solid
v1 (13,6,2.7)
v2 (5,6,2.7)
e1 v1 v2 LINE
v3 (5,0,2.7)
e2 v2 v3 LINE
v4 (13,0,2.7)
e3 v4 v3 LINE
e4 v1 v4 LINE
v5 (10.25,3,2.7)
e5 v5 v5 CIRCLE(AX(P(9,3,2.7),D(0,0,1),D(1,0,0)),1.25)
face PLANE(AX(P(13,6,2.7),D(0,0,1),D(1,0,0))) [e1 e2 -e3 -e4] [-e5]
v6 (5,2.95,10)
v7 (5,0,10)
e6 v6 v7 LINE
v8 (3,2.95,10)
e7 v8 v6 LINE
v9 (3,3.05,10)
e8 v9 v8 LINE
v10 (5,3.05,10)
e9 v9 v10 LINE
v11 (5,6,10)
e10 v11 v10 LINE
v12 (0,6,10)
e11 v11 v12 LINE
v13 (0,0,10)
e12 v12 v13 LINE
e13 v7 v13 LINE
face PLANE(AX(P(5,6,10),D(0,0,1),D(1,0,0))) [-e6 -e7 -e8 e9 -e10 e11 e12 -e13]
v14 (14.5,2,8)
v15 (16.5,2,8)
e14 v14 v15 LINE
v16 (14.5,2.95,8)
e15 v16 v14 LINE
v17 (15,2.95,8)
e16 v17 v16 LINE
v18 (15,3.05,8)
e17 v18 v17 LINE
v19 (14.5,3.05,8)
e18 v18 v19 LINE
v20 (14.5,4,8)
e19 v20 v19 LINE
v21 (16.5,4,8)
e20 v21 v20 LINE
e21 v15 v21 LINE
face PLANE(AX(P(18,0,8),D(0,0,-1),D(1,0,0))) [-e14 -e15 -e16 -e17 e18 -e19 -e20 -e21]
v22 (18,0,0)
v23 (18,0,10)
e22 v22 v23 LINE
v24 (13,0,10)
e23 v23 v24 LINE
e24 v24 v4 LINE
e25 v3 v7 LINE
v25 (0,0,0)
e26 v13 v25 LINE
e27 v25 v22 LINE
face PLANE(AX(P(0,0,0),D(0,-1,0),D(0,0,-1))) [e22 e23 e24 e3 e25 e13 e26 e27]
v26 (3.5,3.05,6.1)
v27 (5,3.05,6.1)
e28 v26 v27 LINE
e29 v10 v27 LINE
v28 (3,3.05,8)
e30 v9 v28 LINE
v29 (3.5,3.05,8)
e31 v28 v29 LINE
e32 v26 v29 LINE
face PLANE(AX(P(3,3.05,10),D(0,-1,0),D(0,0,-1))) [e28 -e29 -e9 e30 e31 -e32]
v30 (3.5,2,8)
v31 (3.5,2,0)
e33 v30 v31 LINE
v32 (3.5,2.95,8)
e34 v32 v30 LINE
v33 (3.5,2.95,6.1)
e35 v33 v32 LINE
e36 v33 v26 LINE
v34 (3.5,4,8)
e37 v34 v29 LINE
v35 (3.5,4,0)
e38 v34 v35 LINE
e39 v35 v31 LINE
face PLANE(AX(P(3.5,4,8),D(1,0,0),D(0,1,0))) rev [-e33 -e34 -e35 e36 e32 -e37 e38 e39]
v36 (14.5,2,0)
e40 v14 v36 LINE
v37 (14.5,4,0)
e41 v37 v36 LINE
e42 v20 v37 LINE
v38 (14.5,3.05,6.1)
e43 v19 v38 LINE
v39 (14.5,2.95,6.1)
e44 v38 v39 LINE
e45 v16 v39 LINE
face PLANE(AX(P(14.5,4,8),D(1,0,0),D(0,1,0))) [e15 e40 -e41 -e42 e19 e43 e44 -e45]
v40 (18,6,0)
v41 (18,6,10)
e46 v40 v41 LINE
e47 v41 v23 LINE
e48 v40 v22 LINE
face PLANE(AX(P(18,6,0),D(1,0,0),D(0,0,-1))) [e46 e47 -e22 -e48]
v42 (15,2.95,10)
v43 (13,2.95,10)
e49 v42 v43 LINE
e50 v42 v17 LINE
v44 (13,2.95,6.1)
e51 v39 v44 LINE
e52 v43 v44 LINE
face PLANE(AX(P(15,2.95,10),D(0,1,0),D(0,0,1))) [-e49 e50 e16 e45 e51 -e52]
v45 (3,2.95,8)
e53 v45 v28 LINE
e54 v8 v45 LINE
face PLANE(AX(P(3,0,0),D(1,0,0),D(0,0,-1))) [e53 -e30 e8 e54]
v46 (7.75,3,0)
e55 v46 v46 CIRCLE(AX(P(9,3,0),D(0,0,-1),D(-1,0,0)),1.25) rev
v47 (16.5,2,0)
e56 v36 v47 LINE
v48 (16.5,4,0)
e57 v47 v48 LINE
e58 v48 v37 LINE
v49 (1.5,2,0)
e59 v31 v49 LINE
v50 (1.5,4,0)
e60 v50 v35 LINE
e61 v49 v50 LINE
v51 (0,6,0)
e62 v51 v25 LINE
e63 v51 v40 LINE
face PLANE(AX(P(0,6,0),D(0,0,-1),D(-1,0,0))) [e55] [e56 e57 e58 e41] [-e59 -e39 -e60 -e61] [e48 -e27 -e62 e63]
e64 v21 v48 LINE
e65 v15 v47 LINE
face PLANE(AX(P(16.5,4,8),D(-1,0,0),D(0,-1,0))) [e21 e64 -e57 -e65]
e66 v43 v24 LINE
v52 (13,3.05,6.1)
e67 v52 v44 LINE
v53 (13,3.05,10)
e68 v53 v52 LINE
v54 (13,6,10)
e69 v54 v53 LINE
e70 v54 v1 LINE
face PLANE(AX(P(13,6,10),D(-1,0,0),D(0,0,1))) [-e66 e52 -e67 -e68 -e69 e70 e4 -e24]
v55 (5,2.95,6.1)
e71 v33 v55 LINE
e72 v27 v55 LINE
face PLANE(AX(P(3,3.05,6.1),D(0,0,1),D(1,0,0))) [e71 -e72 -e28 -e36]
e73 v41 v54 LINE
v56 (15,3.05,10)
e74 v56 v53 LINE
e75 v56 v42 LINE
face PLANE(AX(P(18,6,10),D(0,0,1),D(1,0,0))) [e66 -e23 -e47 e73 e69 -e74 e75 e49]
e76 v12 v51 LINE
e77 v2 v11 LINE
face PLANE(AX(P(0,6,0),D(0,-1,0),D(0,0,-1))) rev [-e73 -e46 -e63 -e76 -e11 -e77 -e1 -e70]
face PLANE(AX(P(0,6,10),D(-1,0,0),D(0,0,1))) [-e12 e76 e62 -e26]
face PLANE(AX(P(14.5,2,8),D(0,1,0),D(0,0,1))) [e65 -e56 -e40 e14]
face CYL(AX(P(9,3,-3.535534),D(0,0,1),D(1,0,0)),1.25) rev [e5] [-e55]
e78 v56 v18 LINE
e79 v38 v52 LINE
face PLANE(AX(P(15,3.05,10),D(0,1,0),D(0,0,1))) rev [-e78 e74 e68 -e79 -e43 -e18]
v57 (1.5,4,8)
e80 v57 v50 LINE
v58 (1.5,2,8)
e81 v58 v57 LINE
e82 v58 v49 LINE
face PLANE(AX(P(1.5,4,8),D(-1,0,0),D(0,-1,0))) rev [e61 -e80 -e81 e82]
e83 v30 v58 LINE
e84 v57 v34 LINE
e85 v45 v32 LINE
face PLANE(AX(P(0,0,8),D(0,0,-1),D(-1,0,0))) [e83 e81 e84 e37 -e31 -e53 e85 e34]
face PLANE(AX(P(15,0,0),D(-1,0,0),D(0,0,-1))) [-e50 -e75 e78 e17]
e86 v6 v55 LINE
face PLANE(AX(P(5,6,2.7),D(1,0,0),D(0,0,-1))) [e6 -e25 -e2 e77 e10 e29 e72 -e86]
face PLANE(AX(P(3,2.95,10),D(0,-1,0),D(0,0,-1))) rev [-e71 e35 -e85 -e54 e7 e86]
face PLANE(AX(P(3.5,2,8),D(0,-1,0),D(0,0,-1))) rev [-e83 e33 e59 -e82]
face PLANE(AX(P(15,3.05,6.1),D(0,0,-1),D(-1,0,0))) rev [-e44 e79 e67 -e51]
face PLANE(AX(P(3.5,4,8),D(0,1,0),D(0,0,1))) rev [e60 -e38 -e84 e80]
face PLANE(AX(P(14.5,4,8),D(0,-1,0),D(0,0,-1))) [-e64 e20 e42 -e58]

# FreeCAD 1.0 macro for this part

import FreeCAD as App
import Part
import Sketcher

V = App.Vector
Q = App.Units.Quantity

doc = App.newDocument("Part")
body = doc.addObject("PartDesign::Body", "Body")

sketch1 = body.newObject("Sketcher::SketchObject", "Sketch")
sketch1.AttachmentSupport = (doc.getObject("XZ_Plane"), [""])
sketch1.MapMode = "FlatFace"
sketch1.addGeometry([
    Part.LineSegment(V(18, 0, 0), V(0, 0, 0)),
    Part.LineSegment(V(0, 0, 0), V(0, 10, 0)),
    Part.LineSegment(V(0, 10, 0), V(5, 10, 0)),
    Part.LineSegment(V(5, 10, 0), V(5, 3, 0)),
    Part.LineSegment(V(5, 3, 0), V(13, 3, 0)),
    Part.LineSegment(V(13, 3, 0), V(13, 10, 0)),
    Part.LineSegment(V(13, 10, 0), V(18, 10, 0)),
    Part.LineSegment(V(18, 10, 0), V(18, 0, 0)),
], False)
sketch1.addConstraint([
    Sketcher.Constraint("Coincident", 0, 2, 1, 1),
    Sketcher.Constraint("Coincident", 1, 2, 2, 1),
    Sketcher.Constraint("Coincident", 2, 2, 3, 1),
    Sketcher.Constraint("Coincident", 3, 2, 4, 1),
    Sketcher.Constraint("Coincident", 4, 2, 5, 1),
    Sketcher.Constraint("Coincident", 5, 2, 6, 1),
    Sketcher.Constraint("Coincident", 6, 2, 7, 1),
    Sketcher.Constraint("Coincident", 7, 2, 0, 1),
    Sketcher.Constraint("Horizontal", 0),
    Sketcher.Constraint("Vertical", 1),
    Sketcher.Constraint("Horizontal", 2),
    Sketcher.Constraint("Vertical", 3),
    Sketcher.Constraint("Horizontal", 4),
    Sketcher.Constraint("Vertical", 5),
    Sketcher.Constraint("Horizontal", 6),
    Sketcher.Constraint("Vertical", 7),
    Sketcher.Constraint("Coincident", 0, 2, -1, 1),
    Sketcher.Constraint("Horizontal", 2, 2, 5, 2),
    Sketcher.Constraint("Equal", 2, 6),
    Sketcher.Constraint("DistanceX", 0, 2, 0, 1, Q("18 mm")),
    Sketcher.Constraint("DistanceX", 2, 1, 2, 2, Q("5 mm")),
    Sketcher.Constraint("DistanceY", 1, 1, 1, 2, Q("10 mm")),
    Sketcher.Constraint("DistanceY", 3, 2, 3, 1, Q("7.3 mm")),
])
pad1 = body.newObject("PartDesign::Pad", "Pad")
pad1.Profile = sketch1
pad1.Length = 6
pad1.Reversed = True

sketch2 = body.newObject("Sketcher::SketchObject", "Sketch001")
sketch2.AttachmentSupport = (doc.getObject("XY_Plane"), [""])
sketch2.MapMode = "FlatFace"
sketch2.AttachmentOffset = App.Placement(V(0, 0, 2.7), App.Rotation())
sketch2.addGeometry(Part.Circle(V(9, 3, 0), V(0, 0, 1), 1.2), False)
sketch2.addConstraint([
    Sketcher.Constraint("Diameter", 0, Q("2.5 mm")),
    Sketcher.Constraint("DistanceX", -1, 1, 0, 3, Q("9 mm")),
    Sketcher.Constraint("DistanceY", -1, 1, 0, 3, Q("3 mm")),
])
pocket1 = body.newObject("PartDesign::Pocket", "Pocket")
pocket1.Profile = sketch2
pocket1.Length = 2.7

sketch3 = body.newObject("Sketcher::SketchObject", "Sketch002")
sketch3.AttachmentSupport = (doc.getObject("YZ_Plane"), [""])
sketch3.MapMode = "FlatFace"
sketch3.AttachmentOffset = App.Placement(V(0, 0, 5), App.Rotation())
sketch3.addGeometry([
    Part.LineSegment(V(3.05, 10, 0), V(2.95, 10, 0)),
    Part.LineSegment(V(2.95, 10, 0), V(2.95, 6.1, 0)),
    Part.LineSegment(V(2.95, 6.1, 0), V(3.05, 6.1, 0)),
    Part.LineSegment(V(3.05, 6.1, 0), V(3.05, 10, 0)),
], False)
sketch3.addConstraint([
    Sketcher.Constraint("Coincident", 0, 2, 1, 1),
    Sketcher.Constraint("Coincident", 1, 2, 2, 1),
    Sketcher.Constraint("Coincident", 2, 2, 3, 1),
    Sketcher.Constraint("Coincident", 3, 2, 0, 1),
    Sketcher.Constraint("Horizontal", 0),
    Sketcher.Constraint("Vertical", 1),
    Sketcher.Constraint("Horizontal", 2),
    Sketcher.Constraint("Vertical", 3),
    Sketcher.Constraint("DistanceX", 0, 2, 0, 1, Q("0.1 mm")),
    Sketcher.Constraint("DistanceY", 1, 2, 1, 1, Q("3.9 mm")),
    Sketcher.Constraint("DistanceY", -1, 1, 0, 2, Q("10 mm")),
    Sketcher.Constraint("DistanceX", -1, 1, 0, 2, Q("2.95 mm")),
])
pocket2 = body.newObject("PartDesign::Pocket", "Pocket001")
pocket2.Profile = sketch3
pocket2.Length = 2
doc.recompute()

datumplane = body.newObject("PartDesign::Plane", "DatumPlane")
datumplane.AttachmentSupport = (doc.getObject("YZ_Plane"), [""])
datumplane.MapMode = "FlatFace"
datumplane.AttachmentOffset = App.Placement(V(0, 0, 9), App.Rotation())
mirrored = body.newObject("PartDesign::Mirrored", "Mirrored")
mirrored.Originals = [pocket2]
mirrored.MirrorPlane = (datumplane, [""])
body.Tip = mirrored

sketch4 = body.newObject("Sketcher::SketchObject", "Sketch003")
sketch4.AttachmentSupport = (doc.getObject("XY_Plane"), [""])
sketch4.MapMode = "FlatFace"
sketch4.addGeometry([
    Part.LineSegment(V(3.5, 4, 0), V(3.5, 2, 0)),
    Part.LineSegment(V(3.5, 2, 0), V(1.5, 2, 0)),
    Part.LineSegment(V(1.5, 2, 0), V(1.5, 4, 0)),
    Part.LineSegment(V(1.5, 4, 0), V(3.5, 4, 0)),
], False)
sketch4.addConstraint([
    Sketcher.Constraint("Coincident", 0, 2, 1, 1),
    Sketcher.Constraint("Coincident", 1, 2, 2, 1),
    Sketcher.Constraint("Coincident", 2, 2, 3, 1),
    Sketcher.Constraint("Coincident", 3, 2, 0, 1),
    Sketcher.Constraint("Vertical", 0),
    Sketcher.Constraint("Horizontal", 1),
    Sketcher.Constraint("Vertical", 2),
    Sketcher.Constraint("Horizontal", 3),
    Sketcher.Constraint("Equal", 3, 0),
    Sketcher.Constraint("DistanceX", 1, 2, 1, 1, Q("2 mm")),
    Sketcher.Constraint("DistanceY", -1, 1, 0, 2, Q("2 mm")),
    Sketcher.Constraint("DistanceX", -1, 1, 0, 2, Q("3.5 mm")),
])
pocket3 = body.newObject("PartDesign::Pocket", "Pocket002")
pocket3.Profile = sketch4
pocket3.Length = 8
pocket3.Reversed = True
doc.recompute()

datumplane2 = body.newObject("PartDesign::Plane", "DatumPlane001")
datumplane2.AttachmentSupport = (doc.getObject("YZ_Plane"), [""])
datumplane2.MapMode = "FlatFace"
datumplane2.AttachmentOffset = App.Placement(V(0, 0, 9), App.Rotation())
mirrored2 = body.newObject("PartDesign::Mirrored", "Mirrored001")
mirrored2.Originals = [pocket3]
mirrored2.MirrorPlane = (datumplane2, [""])
body.Tip = mirrored2

doc.recompute()
